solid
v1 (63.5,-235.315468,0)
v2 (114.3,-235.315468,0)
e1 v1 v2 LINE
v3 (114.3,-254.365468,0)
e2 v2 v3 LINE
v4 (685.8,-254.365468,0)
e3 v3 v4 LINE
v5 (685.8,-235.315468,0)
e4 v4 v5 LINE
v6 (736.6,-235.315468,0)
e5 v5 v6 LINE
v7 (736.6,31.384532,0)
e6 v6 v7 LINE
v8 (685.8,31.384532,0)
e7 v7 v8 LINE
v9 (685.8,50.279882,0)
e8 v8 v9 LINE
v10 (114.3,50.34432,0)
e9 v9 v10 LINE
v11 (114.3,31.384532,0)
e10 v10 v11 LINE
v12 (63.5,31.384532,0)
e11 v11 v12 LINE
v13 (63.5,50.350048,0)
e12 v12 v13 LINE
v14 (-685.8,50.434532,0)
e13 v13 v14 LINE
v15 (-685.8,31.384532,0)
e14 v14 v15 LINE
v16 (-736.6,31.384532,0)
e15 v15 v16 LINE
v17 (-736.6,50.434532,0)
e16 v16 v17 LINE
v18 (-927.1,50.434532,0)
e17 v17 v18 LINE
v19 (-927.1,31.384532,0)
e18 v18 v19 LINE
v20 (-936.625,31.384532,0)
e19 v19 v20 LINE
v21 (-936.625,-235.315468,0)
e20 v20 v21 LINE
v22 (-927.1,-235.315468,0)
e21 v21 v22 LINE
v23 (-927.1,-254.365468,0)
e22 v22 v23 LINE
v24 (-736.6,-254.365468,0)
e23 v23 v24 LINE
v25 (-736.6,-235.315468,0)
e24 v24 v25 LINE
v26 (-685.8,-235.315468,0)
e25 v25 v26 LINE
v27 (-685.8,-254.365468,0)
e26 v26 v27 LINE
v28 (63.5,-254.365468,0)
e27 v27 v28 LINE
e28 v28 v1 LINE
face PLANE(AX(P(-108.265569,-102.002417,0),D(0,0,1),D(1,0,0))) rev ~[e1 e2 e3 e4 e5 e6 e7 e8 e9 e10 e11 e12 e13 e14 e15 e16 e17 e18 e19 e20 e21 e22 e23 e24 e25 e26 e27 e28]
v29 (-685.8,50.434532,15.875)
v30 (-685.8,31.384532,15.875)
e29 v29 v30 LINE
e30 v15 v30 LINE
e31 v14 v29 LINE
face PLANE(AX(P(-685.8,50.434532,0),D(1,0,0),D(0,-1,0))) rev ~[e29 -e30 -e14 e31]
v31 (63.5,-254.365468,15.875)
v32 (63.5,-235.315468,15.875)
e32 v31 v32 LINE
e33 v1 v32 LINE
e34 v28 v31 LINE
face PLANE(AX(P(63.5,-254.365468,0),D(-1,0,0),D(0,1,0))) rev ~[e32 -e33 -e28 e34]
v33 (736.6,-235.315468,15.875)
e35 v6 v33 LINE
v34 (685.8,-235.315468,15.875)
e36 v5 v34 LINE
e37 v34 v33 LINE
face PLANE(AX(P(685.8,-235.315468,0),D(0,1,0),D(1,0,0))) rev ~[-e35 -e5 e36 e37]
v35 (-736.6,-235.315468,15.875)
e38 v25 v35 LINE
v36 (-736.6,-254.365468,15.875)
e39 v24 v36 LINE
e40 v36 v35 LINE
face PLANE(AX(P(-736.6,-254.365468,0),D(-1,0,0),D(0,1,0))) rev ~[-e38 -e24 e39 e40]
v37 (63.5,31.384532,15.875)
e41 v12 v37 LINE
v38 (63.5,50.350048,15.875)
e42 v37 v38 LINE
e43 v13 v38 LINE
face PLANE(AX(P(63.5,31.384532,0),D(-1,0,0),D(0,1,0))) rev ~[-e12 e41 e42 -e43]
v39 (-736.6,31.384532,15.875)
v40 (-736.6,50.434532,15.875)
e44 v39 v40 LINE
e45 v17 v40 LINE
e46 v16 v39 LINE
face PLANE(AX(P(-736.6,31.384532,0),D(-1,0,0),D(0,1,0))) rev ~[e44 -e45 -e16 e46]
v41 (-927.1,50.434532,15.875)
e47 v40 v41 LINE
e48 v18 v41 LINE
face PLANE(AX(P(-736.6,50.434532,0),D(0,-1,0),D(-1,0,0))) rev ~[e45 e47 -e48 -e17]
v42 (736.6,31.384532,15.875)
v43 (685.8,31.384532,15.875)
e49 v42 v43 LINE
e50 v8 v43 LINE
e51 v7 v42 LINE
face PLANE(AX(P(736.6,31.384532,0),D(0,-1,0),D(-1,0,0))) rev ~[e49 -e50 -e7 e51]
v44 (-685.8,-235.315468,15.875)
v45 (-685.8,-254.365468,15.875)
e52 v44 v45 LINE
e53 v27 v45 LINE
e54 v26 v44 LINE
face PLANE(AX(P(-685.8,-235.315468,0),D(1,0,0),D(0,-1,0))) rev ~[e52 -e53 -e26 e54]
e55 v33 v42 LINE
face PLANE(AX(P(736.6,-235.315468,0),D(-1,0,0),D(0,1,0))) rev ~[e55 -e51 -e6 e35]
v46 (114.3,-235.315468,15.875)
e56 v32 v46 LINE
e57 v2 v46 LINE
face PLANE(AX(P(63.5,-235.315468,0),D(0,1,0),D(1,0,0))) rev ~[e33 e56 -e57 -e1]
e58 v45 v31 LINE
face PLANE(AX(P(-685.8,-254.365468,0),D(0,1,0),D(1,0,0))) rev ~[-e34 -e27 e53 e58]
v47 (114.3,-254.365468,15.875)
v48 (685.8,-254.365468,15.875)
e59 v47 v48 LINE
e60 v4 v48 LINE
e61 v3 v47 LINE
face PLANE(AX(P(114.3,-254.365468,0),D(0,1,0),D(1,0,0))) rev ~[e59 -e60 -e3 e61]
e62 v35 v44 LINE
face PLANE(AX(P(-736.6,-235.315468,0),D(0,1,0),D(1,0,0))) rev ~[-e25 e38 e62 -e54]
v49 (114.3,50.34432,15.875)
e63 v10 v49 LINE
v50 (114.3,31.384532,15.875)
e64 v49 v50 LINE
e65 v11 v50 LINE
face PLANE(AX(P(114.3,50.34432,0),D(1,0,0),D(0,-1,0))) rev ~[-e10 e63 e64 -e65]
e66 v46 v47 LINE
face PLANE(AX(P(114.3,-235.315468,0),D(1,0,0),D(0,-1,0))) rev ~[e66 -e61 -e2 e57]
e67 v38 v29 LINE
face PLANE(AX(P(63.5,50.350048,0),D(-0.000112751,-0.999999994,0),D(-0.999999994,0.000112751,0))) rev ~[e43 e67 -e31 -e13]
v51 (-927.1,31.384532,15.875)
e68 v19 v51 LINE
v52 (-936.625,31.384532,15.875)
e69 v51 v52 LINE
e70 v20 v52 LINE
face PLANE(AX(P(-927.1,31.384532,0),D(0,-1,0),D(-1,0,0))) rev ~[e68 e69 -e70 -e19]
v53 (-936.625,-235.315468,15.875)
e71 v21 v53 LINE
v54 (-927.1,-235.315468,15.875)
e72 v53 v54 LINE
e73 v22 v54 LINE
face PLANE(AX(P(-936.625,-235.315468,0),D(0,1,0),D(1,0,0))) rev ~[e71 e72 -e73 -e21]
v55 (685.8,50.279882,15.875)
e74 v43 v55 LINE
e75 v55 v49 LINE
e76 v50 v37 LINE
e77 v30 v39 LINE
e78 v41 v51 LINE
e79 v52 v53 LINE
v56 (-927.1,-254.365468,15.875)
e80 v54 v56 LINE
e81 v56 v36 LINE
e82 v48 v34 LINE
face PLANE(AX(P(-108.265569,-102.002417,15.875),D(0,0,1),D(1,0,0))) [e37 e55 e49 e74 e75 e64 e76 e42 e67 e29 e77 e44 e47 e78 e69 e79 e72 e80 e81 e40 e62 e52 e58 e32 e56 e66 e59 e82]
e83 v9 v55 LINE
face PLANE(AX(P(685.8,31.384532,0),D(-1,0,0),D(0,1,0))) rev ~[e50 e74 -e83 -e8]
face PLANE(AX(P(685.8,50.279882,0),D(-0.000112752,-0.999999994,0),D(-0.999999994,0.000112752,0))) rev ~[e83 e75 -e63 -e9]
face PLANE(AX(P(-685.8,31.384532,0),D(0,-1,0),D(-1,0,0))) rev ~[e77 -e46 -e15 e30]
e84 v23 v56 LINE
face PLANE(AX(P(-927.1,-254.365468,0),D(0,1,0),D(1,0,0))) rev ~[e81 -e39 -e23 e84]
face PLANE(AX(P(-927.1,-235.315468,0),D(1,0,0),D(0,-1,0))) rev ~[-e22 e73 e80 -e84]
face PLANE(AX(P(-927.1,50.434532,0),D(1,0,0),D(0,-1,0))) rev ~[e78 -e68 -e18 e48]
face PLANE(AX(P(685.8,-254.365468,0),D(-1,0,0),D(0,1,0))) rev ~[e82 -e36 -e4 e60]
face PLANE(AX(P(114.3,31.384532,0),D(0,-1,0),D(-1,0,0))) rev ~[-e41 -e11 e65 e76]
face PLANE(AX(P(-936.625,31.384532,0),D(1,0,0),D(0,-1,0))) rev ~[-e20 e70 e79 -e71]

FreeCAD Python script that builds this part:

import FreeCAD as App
import Part
import Sketcher
from FreeCAD import Vector
Q = App.Units.Quantity


def add_polygon(sketch, points):
    """Adds a closed chain of lines whose ends are joined by coincident constraints."""
    first, n = sketch.GeometryCount, len(points)
    for a, b in zip(points, points[1:] + points[:1]):
        sketch.addGeometry(Part.LineSegment(App.Vector(*a, 0), App.Vector(*b, 0)), False)
    for i in range(n):
        sketch.addConstraint(Sketcher.Constraint("Coincident", first + i, 2, first + (i + 1) % n, 1))

doc = App.newDocument("Part")
params = doc.addObject("Spreadsheet::Sheet", "Params")
for row, (alias, value) in enumerate([
    ("sketch1_width", "2 in"),
    ("sketch1_width2", "29.5 in"),
    ("sketch1_width3", "22.5 in"),
    ("sketch1_width4", "7.5 in"),
    ("sketch1_height", "10.5 in"),
    ("pad1_length", "0.625 in"),
], start=1):
    params.set(f"A{row}", alias)
    params.set(f"B{row}", "=" + value)
    params.setAlias(f"B{row}", alias)

body = doc.addObject("PartDesign::Body", "Body")

# Sketch on XY plane
sketch1 = doc.addObject("Sketcher::SketchObject", "Sketch")
body.addObject(sketch1)
sketch1.AttachmentSupport = (doc.XY_Plane, [""])
sketch1.MapMode = "FlatFace"
add_polygon(sketch1, [(-685.8, -235.315468), (-685.8, -254.365468), (63.5, -254.365468), (63.5, -235.315468), (114.3, -235.315468), (114.3, -254.365468), (685.8, -254.365468), (685.8, -235.315468), (736.6, -235.315468), (736.6, 31.384532), (685.8, 31.384532), (685.8, 50.279882), (114.3, 50.34432), (114.3, 31.384532), (63.5, 31.384532), (63.5, 50.350048), (-685.8, 50.434532), (-685.8, 31.384532), (-736.6, 31.384532), (-736.6, 50.434532), (-927.1, 50.434532), (-927.1, 31.384532), (-936.625, 31.384532), (-936.625, -235.315468), (-927.1, -235.315468), (-927.1, -254.365468), (-736.6, -254.365468), (-736.6, -235.315468)])  # lines 0-27
sketch1.addConstraint(Sketcher.Constraint("Vertical", 0))
sketch1.addConstraint(Sketcher.Constraint("Horizontal", 1))
sketch1.addConstraint(Sketcher.Constraint("Vertical", 2))
sketch1.addConstraint(Sketcher.Constraint("Horizontal", 3))
sketch1.addConstraint(Sketcher.Constraint("Vertical", 4))
sketch1.addConstraint(Sketcher.Constraint("Horizontal", 5))
sketch1.addConstraint(Sketcher.Constraint("Vertical", 6))
sketch1.addConstraint(Sketcher.Constraint("Horizontal", 7))
sketch1.addConstraint(Sketcher.Constraint("Vertical", 8))
sketch1.addConstraint(Sketcher.Constraint("Horizontal", 9))
sketch1.addConstraint(Sketcher.Constraint("Vertical", 10))
sketch1.addConstraint(Sketcher.Constraint("Vertical", 12))
sketch1.addConstraint(Sketcher.Constraint("Horizontal", 13))
sketch1.addConstraint(Sketcher.Constraint("Vertical", 14))
sketch1.addConstraint(Sketcher.Constraint("Vertical", 16))
sketch1.addConstraint(Sketcher.Constraint("Horizontal", 17))
sketch1.addConstraint(Sketcher.Constraint("Vertical", 18))
sketch1.addConstraint(Sketcher.Constraint("Horizontal", 19))
sketch1.addConstraint(Sketcher.Constraint("Vertical", 20))
sketch1.addConstraint(Sketcher.Constraint("Horizontal", 21))
sketch1.addConstraint(Sketcher.Constraint("Vertical", 22))
sketch1.addConstraint(Sketcher.Constraint("Horizontal", 23))
sketch1.addConstraint(Sketcher.Constraint("Vertical", 24))
sketch1.addConstraint(Sketcher.Constraint("Horizontal", 25))
sketch1.addConstraint(Sketcher.Constraint("Vertical", 26))
sketch1.addConstraint(Sketcher.Constraint("Horizontal", 27))
sketch1.addConstraint(Sketcher.Constraint("Symmetric", 0, 2, 5, 2, -2))
sketch1.addConstraint(Sketcher.Constraint("Symmetric", 9, 2, 16, 2, -2))
sketch1.addConstraint(Sketcher.Constraint("Symmetric", 7, 2, 26, 2, -2))
sketch1.addConstraint(Sketcher.Constraint("Parallel", 11, 15))
sketch1.addConstraint(Sketcher.Constraint("Horizontal", 3, 2, 6, 2))
sketch1.addConstraint(Sketcher.Constraint("Horizontal", 9, 2, 12, 2))
sketch1.addConstraint(Sketcher.Constraint("Horizontal", 15, 2, 18, 2))
sketch1.addConstraint(Sketcher.Constraint("Horizontal", 17, 2, 20, 2))
sketch1.addConstraint(Sketcher.Constraint("Horizontal", 7, 2, 22, 2))
sketch1.addConstraint(Sketcher.Constraint("Horizontal", 5, 2, 24, 2))
sketch1.addConstraint(Sketcher.Constraint("Vertical", 6, 2, 9, 2))
sketch1.addConstraint(Sketcher.Constraint("Vertical", 4, 2, 11, 2))
sketch1.addConstraint(Sketcher.Constraint("Vertical", 2, 2, 13, 2))
sketch1.addConstraint(Sketcher.Constraint("Vertical", 20, 2, 23, 2))
sketch1.addConstraint(Sketcher.Constraint("Vertical", 18, 2, 25, 2))
sketch1.addConstraint(Sketcher.Constraint("Equal", 3, 7))
sketch1.addConstraint(Sketcher.Constraint("Equal", 6, 16))
sketch1.addConstraint(Sketcher.Constraint("DistanceX", 3, 1, 3, 2, Q("2 in")))
sketch1.addConstraint(Sketcher.Constraint("DistanceX", 1, 1, 1, 2, Q("29.5 in")))
sketch1.addConstraint(Sketcher.Constraint("DistanceX", 5, 1, 5, 2, Q("22.5 in")))
sketch1.addConstraint(Sketcher.Constraint("DistanceX", 19, 2, 19, 1, Q("7.5 in")))
sketch1.addConstraint(Sketcher.Constraint("DistanceY", 8, 1, 8, 2, Q("10.5 in")))
sketch1.addConstraint(Sketcher.Constraint("DistanceY", 0, 2, 15, 2, Q("12 in")))
sketch1.addConstraint(Sketcher.Constraint("DistanceX", 21, 2, 21, 1, Q("0.375 in")))
sketch1.addConstraint(Sketcher.Constraint("DistanceY", 10, 1, 10, 2, 18.89535))
sketch1.addConstraint(Sketcher.Constraint("DistanceY", 12, 2, 12, 1, 18.959788))
sketch1.addConstraint(Sketcher.Constraint("DistanceY", 0, 2, -1, 1, 254.365468))
sketch1.setExpression("Constraints[71]", "Params.sketch1_width")
sketch1.setExpression("Constraints[72]", "Params.sketch1_width2")
sketch1.setExpression("Constraints[73]", "Params.sketch1_width3")
sketch1.setExpression("Constraints[74]", "Params.sketch1_width4")
sketch1.setExpression("Constraints[75]", "Params.sketch1_height")
pad1 = doc.addObject("PartDesign::Pad", "Pad")
body.addObject(pad1)
pad1.Profile = sketch1
pad1.setExpression("Length", "Params.pad1_length")

doc.recompute()
